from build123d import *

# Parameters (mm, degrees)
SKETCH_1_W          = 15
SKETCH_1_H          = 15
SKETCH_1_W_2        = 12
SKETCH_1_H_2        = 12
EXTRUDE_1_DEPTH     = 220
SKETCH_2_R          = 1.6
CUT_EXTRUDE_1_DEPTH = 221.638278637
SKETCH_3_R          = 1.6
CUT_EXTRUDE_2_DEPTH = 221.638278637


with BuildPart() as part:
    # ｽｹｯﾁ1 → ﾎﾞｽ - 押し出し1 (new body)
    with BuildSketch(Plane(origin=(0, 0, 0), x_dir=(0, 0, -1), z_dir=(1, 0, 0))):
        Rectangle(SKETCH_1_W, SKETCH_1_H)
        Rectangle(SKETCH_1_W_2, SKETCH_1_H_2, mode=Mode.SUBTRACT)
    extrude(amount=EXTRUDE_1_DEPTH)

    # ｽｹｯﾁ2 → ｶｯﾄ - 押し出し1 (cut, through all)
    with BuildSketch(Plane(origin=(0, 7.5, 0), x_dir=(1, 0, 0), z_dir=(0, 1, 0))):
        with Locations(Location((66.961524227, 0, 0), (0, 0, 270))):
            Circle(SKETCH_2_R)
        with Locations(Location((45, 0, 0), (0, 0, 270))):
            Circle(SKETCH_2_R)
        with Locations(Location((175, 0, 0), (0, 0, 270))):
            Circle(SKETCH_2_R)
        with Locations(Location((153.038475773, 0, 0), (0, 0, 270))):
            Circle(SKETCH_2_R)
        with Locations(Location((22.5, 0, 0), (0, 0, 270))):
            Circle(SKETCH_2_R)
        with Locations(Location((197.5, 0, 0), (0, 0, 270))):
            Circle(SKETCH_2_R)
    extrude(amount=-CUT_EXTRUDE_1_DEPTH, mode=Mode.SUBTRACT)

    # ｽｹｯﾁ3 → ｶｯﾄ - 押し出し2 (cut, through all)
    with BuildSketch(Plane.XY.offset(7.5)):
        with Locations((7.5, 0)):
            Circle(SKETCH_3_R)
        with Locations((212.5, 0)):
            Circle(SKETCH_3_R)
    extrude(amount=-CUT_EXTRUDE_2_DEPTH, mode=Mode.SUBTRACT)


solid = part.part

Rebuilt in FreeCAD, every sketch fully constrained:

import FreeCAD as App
import Part
import Sketcher

V = App.Vector


def add_polygon(sketch, points):
    """Adds a closed chain of lines whose ends are joined by coincident constraints."""
    first, n = sketch.GeometryCount, len(points)
    for a, b in zip(points, points[1:] + points[:1]):
        sketch.addGeometry(Part.LineSegment(App.Vector(*a, 0), App.Vector(*b, 0)), False)
    for i in range(n):
        sketch.addConstraint(Sketcher.Constraint("Coincident", first + i, 2, first + (i + 1) % n, 1))

doc = App.newDocument("Part")
params = doc.addObject("Spreadsheet::Sheet", "Params")
for row, (alias, value) in enumerate([
    ("sketch1_width", "15 mm"),
    ("sketch1_width2", "12 mm"),
    ("pad1_length", "220 mm"),
    ("sketch2_diameter", "3.2 mm"),
    ("sketch3_diameter", "3.2 mm"),
], start=1):
    params.set(f"A{row}", alias)
    params.set(f"B{row}", "=" + value)
    params.setAlias(f"B{row}", alias)

body = doc.addObject("PartDesign::Body", "Body")

# Sketch on YZ plane
sketch1 = doc.addObject("Sketcher::SketchObject", "Sketch")
body.addObject(sketch1)
sketch1.AttachmentSupport = (doc.YZ_Plane, [""])
sketch1.MapMode = "FlatFace"
add_polygon(sketch1, [(8, 8), (-8, 8), (-8, -8), (8, -8)])  # lines 0-3
add_polygon(sketch1, [(-6, -6), (-6, 6), (6, 6), (6, -6)])  # lines 4-7
sketch1.addConstraint([
    Sketcher.Constraint("Horizontal", 0),
    Sketcher.Constraint("Vertical", 1),
    Sketcher.Constraint("Horizontal", 2),
    Sketcher.Constraint("Vertical", 3),
    Sketcher.Constraint("Vertical", 4),
    Sketcher.Constraint("Horizontal", 5),
    Sketcher.Constraint("Vertical", 6),
    Sketcher.Constraint("Horizontal", 7),
    Sketcher.Constraint("Symmetric", 0, 2, 2, 2, -1, 1),
    Sketcher.Constraint("Symmetric", 4, 2, 6, 2, -1, 1),
    Sketcher.Constraint("Equal", 2, 1),
    Sketcher.Constraint("Equal", 7, 4),
    Sketcher.Constraint("DistanceX", 0, 2, 0, 1, 15.0),
    Sketcher.Constraint("DistanceX", 5, 1, 5, 2, 12.0),
])
sketch1.setExpression("Constraints[20]", "Params.sketch1_width")
sketch1.setExpression("Constraints[21]", "Params.sketch1_width2")
pad1 = doc.addObject("PartDesign::Pad", "Pad")
body.addObject(pad1)
pad1.Profile = sketch1
pad1.setExpression("Length", "Params.pad1_length")

# Sketch on XZ plane
sketch2 = doc.addObject("Sketcher::SketchObject", "Sketch001")
body.addObject(sketch2)
sketch2.AttachmentSupport = (doc.XZ_Plane, [""])
sketch2.MapMode = "FlatFace"
sketch2.AttachmentOffset = App.Placement(V(0, 0, -7.5), App.Rotation())
sketch2.addGeometry([
    Part.Circle(V(67, 0, 0), V(0, 0, 1), 1.6),  # 0
    Part.Circle(V(45, 0, 0), V(0, 0, 1), 1.6),  # 1
    Part.Circle(V(175, 0, 0), V(0, 0, 1), 1.6),  # 2
    Part.Circle(V(153, 0, 0), V(0, 0, 1), 1.6),  # 3
    Part.Circle(V(22.5, 0, 0), V(0, 0, 1), 1.6),  # 4
    Part.Circle(V(197.5, 0, 0), V(0, 0, 1), 1.6),  # 5
], False)
sketch2.addConstraint([
    Sketcher.Constraint("Equal", 0, 1),
    Sketcher.Constraint("Equal", 1, 2),
    Sketcher.Constraint("Equal", 2, 3),
    Sketcher.Constraint("Equal", 3, 4),
    Sketcher.Constraint("Equal", 4, 5),
    Sketcher.Constraint("PointOnObject", 0, 3, -1),
    Sketcher.Constraint("PointOnObject", 1, 3, -1),
    Sketcher.Constraint("PointOnObject", 2, 3, -1),
    Sketcher.Constraint("PointOnObject", 3, 3, -1),
    Sketcher.Constraint("PointOnObject", 4, 3, -1),
    Sketcher.Constraint("PointOnObject", 5, 3, -1),
    Sketcher.Constraint("Diameter", 0, 3.2),
    Sketcher.Constraint("DistanceX", -1, 1, 1, 3, 45.0),
    Sketcher.Constraint("DistanceX", -1, 1, 2, 3, 175.0),
    Sketcher.Constraint("DistanceX", 4, 3, 5, 3, 175.0),
    Sketcher.Constraint("DistanceX", -1, 1, 4, 3, 22.5),
    Sketcher.Constraint("DistanceX", 0, 3, 3, 3, 86.076952),
    Sketcher.Constraint("DistanceX", -1, 1, 0, 3, 66.961524),
])
sketch2.setExpression("Constraints[11]", "Params.sketch2_diameter")
pocket1 = doc.addObject("PartDesign::Pocket", "Pocket")
body.addObject(pocket1)
pocket1.Profile = sketch2
pocket1.Type = "ThroughAll"
pocket1.Reversed = True

# Sketch on XY plane
sketch3 = doc.addObject("Sketcher::SketchObject", "Sketch002")
body.addObject(sketch3)
sketch3.AttachmentSupport = (doc.XY_Plane, [""])
sketch3.MapMode = "FlatFace"
sketch3.AttachmentOffset = App.Placement(V(0, 0, 7.5), App.Rotation())
sketch3.addGeometry([
    Part.Circle(V(7.5, 0, 0), V(0, 0, 1), 1.6),
    Part.Circle(V(212.5, 0, 0), V(0, 0, 1), 1.6),
], False)
sketch3.addConstraint([
    Sketcher.Constraint("Equal", 0, 1),
    Sketcher.Constraint("PointOnObject", 0, 3, -1),
    Sketcher.Constraint("PointOnObject", 1, 3, -1),
    Sketcher.Constraint("Diameter", 0, 3.2),
    Sketcher.Constraint("DistanceX", 0, 3, 1, 3, 205.0),
    Sketcher.Constraint("DistanceX", -1, 1, 0, 3, 7.5),
])
sketch3.setExpression("Constraints[3]", "Params.sketch3_diameter")
pocket2 = doc.addObject("PartDesign::Pocket", "Pocket001")
body.addObject(pocket2)
pocket2.Profile = sketch3
pocket2.Type = "ThroughAll"

doc.recompute()
